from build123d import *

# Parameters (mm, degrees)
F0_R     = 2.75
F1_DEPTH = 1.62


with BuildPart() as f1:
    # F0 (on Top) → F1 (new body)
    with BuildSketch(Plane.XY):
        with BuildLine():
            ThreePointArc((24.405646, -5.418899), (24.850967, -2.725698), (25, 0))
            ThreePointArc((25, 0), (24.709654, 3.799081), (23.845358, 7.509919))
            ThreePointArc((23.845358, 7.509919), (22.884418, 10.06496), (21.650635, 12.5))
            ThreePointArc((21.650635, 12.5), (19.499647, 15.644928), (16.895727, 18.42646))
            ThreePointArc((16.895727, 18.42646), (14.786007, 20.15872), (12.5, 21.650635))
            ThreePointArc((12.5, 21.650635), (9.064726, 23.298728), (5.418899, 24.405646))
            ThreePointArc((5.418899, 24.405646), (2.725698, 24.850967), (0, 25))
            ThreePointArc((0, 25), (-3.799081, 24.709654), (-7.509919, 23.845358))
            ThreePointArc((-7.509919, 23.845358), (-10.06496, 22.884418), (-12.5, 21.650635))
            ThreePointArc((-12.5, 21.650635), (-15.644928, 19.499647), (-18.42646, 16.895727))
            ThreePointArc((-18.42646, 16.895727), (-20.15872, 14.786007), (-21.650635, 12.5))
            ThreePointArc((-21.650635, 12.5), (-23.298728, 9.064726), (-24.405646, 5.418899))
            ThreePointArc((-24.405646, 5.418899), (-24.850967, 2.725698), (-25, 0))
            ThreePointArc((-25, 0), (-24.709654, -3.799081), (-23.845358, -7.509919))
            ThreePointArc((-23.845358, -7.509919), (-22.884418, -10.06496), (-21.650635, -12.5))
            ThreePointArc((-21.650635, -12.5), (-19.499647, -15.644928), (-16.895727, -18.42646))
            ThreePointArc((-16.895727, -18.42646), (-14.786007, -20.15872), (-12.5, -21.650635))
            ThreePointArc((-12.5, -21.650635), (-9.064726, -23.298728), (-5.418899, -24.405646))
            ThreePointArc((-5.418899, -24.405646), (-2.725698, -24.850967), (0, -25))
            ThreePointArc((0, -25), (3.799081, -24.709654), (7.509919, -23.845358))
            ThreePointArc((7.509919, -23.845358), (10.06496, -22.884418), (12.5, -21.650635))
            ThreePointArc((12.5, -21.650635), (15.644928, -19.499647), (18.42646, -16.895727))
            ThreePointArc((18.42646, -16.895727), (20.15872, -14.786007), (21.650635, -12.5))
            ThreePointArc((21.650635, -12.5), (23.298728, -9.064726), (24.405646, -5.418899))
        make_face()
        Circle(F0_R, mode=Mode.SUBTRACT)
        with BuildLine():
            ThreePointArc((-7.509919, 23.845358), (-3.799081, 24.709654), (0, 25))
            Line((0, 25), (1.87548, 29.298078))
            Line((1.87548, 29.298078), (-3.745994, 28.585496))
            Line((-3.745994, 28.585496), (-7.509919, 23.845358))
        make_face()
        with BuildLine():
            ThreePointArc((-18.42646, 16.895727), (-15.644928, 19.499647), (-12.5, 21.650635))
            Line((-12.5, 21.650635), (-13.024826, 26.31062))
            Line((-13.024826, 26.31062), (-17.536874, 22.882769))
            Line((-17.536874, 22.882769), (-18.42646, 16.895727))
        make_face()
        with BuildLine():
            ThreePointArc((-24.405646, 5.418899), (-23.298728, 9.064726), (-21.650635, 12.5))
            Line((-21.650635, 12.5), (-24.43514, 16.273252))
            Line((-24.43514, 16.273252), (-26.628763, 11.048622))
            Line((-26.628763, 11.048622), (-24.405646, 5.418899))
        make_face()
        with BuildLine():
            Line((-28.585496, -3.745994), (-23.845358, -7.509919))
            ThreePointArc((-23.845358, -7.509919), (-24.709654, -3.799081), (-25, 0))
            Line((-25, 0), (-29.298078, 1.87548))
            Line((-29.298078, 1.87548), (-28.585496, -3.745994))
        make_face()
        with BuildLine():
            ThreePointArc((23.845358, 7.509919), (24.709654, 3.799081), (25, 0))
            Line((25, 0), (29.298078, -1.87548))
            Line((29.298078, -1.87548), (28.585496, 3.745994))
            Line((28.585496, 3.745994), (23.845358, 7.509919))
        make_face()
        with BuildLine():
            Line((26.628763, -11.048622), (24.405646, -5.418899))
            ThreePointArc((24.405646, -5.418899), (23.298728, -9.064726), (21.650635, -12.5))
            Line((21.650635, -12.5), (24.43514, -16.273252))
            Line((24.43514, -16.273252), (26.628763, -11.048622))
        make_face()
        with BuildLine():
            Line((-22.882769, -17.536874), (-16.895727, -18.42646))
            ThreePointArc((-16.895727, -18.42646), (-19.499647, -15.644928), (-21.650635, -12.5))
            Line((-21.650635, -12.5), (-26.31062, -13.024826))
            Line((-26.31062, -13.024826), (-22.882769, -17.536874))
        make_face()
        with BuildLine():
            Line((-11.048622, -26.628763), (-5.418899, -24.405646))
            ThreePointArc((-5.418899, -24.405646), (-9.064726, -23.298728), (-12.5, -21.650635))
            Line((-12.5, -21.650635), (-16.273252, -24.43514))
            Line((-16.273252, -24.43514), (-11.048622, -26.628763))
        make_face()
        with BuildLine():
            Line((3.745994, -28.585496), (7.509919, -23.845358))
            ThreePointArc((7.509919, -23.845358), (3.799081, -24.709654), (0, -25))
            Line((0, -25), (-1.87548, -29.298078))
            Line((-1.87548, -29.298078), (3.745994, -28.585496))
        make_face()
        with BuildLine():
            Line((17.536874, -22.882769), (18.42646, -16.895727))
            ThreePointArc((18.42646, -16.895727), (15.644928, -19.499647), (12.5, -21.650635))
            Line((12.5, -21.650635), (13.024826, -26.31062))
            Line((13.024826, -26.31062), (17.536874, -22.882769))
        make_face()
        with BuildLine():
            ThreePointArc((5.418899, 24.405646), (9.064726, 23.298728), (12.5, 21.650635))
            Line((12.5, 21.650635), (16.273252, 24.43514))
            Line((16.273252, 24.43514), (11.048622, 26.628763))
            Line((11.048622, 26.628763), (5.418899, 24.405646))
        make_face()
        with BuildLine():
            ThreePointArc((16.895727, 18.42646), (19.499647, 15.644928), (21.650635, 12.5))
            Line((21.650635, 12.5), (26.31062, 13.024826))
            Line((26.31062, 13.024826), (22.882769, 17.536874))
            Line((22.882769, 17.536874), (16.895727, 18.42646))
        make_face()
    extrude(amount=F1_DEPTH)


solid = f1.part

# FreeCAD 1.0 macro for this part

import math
import FreeCAD as App
import Part
import Sketcher

V = App.Vector
Q = App.Units.Quantity

doc = App.newDocument("Part")
params = doc.addObject("Spreadsheet::Sheet", "Params")
for row, (alias, value) in enumerate([
    ("sketch1_diameter", "5.5 mm"),
    ("pad1_length", "1.62 mm"),
], start=1):
    params.set(f"A{row}", alias)
    params.set(f"B{row}", "=" + value)
    params.setAlias(f"B{row}", alias)

body = doc.addObject("PartDesign::Body", "Body")

# Sketch on XY plane
sketch1 = doc.addObject("Sketcher::SketchObject", "Sketch")
body.addObject(sketch1)
sketch1.AttachmentSupport = (doc.XY_Plane, [""])
sketch1.MapMode = "FlatFace"
sketch1.addGeometry(Part.ArcOfCircle(Part.Circle(V(-0.000071, 0.000006, 0), V(0, 0, 1), 25.000071), math.radians(-12.518543), math.radians(-0.000013)), False)
sketch1.addGeometry(Part.LineSegment(V(25, 0, 0), V(29.298078, -1.87548, 0)), False)
sketch1.addGeometry(Part.LineSegment(V(29.298078, -1.87548, 0), V(28.585496, 3.745994, 0)), False)
sketch1.addGeometry(Part.LineSegment(V(28.585496, 3.745994, 0), V(23.845358, 7.509919, 0)), False)
sketch1.addGeometry(Part.ArcOfCircle(Part.Circle(V(0.000056, 0.000026, 0), V(0, 0, 1), 24.999939), math.radians(17.481417), math.radians(30.000012)), False)
sketch1.addGeometry(Part.LineSegment(V(21.650635, 12.5, 0), V(26.31062, 13.024826, 0)), False)
sketch1.addGeometry(Part.LineSegment(V(26.31062, 13.024826, 0), V(22.882769, 17.536874, 0)), False)
sketch1.addGeometry(Part.LineSegment(V(22.882769, 17.536874, 0), V(16.895727, 18.42646, 0)), False)
sketch1.addGeometry(Part.ArcOfCircle(Part.Circle(V(-0.000023, -0.000035, 0), V(0, 0, 1), 25.000042), math.radians(47.48145), math.radians(59.999994)), False)
sketch1.addGeometry(Part.LineSegment(V(12.5, 21.650635, 0), V(16.273252, 24.43514, 0)), False)
sketch1.addGeometry(Part.LineSegment(V(16.273252, 24.43514, 0), V(11.048622, 26.628763, 0)), False)
sketch1.addGeometry(Part.LineSegment(V(11.048622, 26.628763, 0), V(5.418899, 24.405646, 0)), False)
sketch1.addGeometry(Part.ArcOfCircle(Part.Circle(V(-0.000006, -0.000071, 0), V(0, 0, 1), 25.000071), math.radians(77.481457), math.radians(89.999987)), False)
sketch1.addGeometry(Part.LineSegment(V(0, 25, 0), V(1.87548, 29.298078, 0)), False)
sketch1.addGeometry(Part.LineSegment(V(1.87548, 29.298078, 0), V(-3.745994, 28.585496, 0)), False)
sketch1.addGeometry(Part.LineSegment(V(-3.745994, 28.585496, 0), V(-7.509919, 23.845358, 0)), False)
sketch1.addGeometry(Part.ArcOfCircle(Part.Circle(V(-0.000026, 0.000056, 0), V(0, 0, 1), 24.999939), math.radians(107.481417), math.radians(120.000012)), False)
sketch1.addGeometry(Part.LineSegment(V(-12.5, 21.650635, 0), V(-13.024826, 26.31062, 0)), False)
sketch1.addGeometry(Part.LineSegment(V(-13.024826, 26.31062, 0), V(-17.536874, 22.882769, 0)), False)
sketch1.addGeometry(Part.LineSegment(V(-17.536874, 22.882769, 0), V(-18.42646, 16.895727, 0)), False)
sketch1.addGeometry(Part.ArcOfCircle(Part.Circle(V(0.000035, -0.000023, 0), V(0, 0, 1), 25.000042), math.radians(137.48145), math.radians(149.999994)), False)
sketch1.addGeometry(Part.LineSegment(V(-21.650635, 12.5, 0), V(-24.43514, 16.273252, 0)), False)
sketch1.addGeometry(Part.LineSegment(V(-24.43514, 16.273252, 0), V(-26.628763, 11.048622, 0)), False)
sketch1.addGeometry(Part.LineSegment(V(-26.628763, 11.048622, 0), V(-24.405646, 5.418899, 0)), False)
sketch1.addGeometry(Part.ArcOfCircle(Part.Circle(V(0.000071, -0.000006, 0), V(0, 0, 1), 25.000071), math.radians(167.481457), math.radians(179.999987)), False)
sketch1.addGeometry(Part.LineSegment(V(-25, 0, 0), V(-29.298078, 1.87548, 0)), False)
sketch1.addGeometry(Part.LineSegment(V(-29.298078, 1.87548, 0), V(-28.585496, -3.745994, 0)), False)
sketch1.addGeometry(Part.LineSegment(V(-28.585496, -3.745994, 0), V(-23.845358, -7.509919, 0)), False)
sketch1.addGeometry(Part.ArcOfCircle(Part.Circle(V(-0.000056, -0.000026, 0), V(0, 0, 1), 24.999939), math.radians(-162.518583), math.radians(-149.999988)), False)
sketch1.addGeometry(Part.LineSegment(V(-21.650635, -12.5, 0), V(-26.31062, -13.024826, 0)), False)
sketch1.addGeometry(Part.LineSegment(V(-26.31062, -13.024826, 0), V(-22.882769, -17.536874, 0)), False)
sketch1.addGeometry(Part.LineSegment(V(-22.882769, -17.536874, 0), V(-16.895727, -18.42646, 0)), False)
sketch1.addGeometry(Part.ArcOfCircle(Part.Circle(V(0.000023, 0.000035, 0), V(0, 0, 1), 25.000042), math.radians(-132.51855), math.radians(-120.000006)), False)
sketch1.addGeometry(Part.LineSegment(V(-12.5, -21.650635, 0), V(-16.273252, -24.43514, 0)), False)
sketch1.addGeometry(Part.LineSegment(V(-16.273252, -24.43514, 0), V(-11.048622, -26.628763, 0)), False)
sketch1.addGeometry(Part.LineSegment(V(-11.048622, -26.628763, 0), V(-5.418899, -24.405646, 0)), False)
sketch1.addGeometry(Part.ArcOfCircle(Part.Circle(V(0.000006, 0.000071, 0), V(0, 0, 1), 25.000071), math.radians(-102.518543), math.radians(-90.000013)), False)
sketch1.addGeometry(Part.LineSegment(V(0, -25, 0), V(-1.87548, -29.298078, 0)), False)
sketch1.addGeometry(Part.LineSegment(V(-1.87548, -29.298078, 0), V(3.745994, -28.585496, 0)), False)
sketch1.addGeometry(Part.LineSegment(V(3.745994, -28.585496, 0), V(7.509919, -23.845358, 0)), False)
sketch1.addGeometry(Part.ArcOfCircle(Part.Circle(V(0.000026, -0.000056, 0), V(0, 0, 1), 24.999939), math.radians(-72.518583), math.radians(-59.999988)), False)
sketch1.addGeometry(Part.LineSegment(V(12.5, -21.650635, 0), V(13.024826, -26.31062, 0)), False)
sketch1.addGeometry(Part.LineSegment(V(13.024826, -26.31062, 0), V(17.536874, -22.882769, 0)), False)
sketch1.addGeometry(Part.LineSegment(V(17.536874, -22.882769, 0), V(18.42646, -16.895727, 0)), False)
sketch1.addGeometry(Part.ArcOfCircle(Part.Circle(V(-0.000035, 0.000023, 0), V(0, 0, 1), 25.000042), math.radians(-42.51855), math.radians(-30.000006)), False)
sketch1.addGeometry(Part.LineSegment(V(21.650635, -12.5, 0), V(24.43514, -16.273252, 0)), False)
sketch1.addGeometry(Part.LineSegment(V(24.43514, -16.273252, 0), V(26.628763, -11.048622, 0)), False)
sketch1.addGeometry(Part.LineSegment(V(26.628763, -11.048622, 0), V(24.405646, -5.418899, 0)), False)
sketch1.addGeometry(Part.Circle(V(0, 0, 0), V(0, 0, 1), 2.75), False)
sketch1.addConstraint(Sketcher.Constraint("Coincident", 0, 2, 1, 1))
sketch1.addConstraint(Sketcher.Constraint("Coincident", 1, 2, 2, 1))
sketch1.addConstraint(Sketcher.Constraint("Coincident", 2, 2, 3, 1))
sketch1.addConstraint(Sketcher.Constraint("Coincident", 3, 2, 4, 1))
sketch1.addConstraint(Sketcher.Constraint("Coincident", 4, 2, 5, 1))
sketch1.addConstraint(Sketcher.Constraint("Coincident", 5, 2, 6, 1))
sketch1.addConstraint(Sketcher.Constraint("Coincident", 6, 2, 7, 1))
sketch1.addConstraint(Sketcher.Constraint("Coincident", 7, 2, 8, 1))
sketch1.addConstraint(Sketcher.Constraint("Coincident", 8, 2, 9, 1))
sketch1.addConstraint(Sketcher.Constraint("Coincident", 9, 2, 10, 1))
sketch1.addConstraint(Sketcher.Constraint("Coincident", 10, 2, 11, 1))
sketch1.addConstraint(Sketcher.Constraint("Coincident", 11, 2, 12, 1))
sketch1.addConstraint(Sketcher.Constraint("Coincident", 12, 2, 13, 1))
sketch1.addConstraint(Sketcher.Constraint("Coincident", 13, 2, 14, 1))
sketch1.addConstraint(Sketcher.Constraint("Coincident", 14, 2, 15, 1))
sketch1.addConstraint(Sketcher.Constraint("Coincident", 15, 2, 16, 1))
sketch1.addConstraint(Sketcher.Constraint("Coincident", 16, 2, 17, 1))
sketch1.addConstraint(Sketcher.Constraint("Coincident", 17, 2, 18, 1))
sketch1.addConstraint(Sketcher.Constraint("Coincident", 18, 2, 19, 1))
sketch1.addConstraint(Sketcher.Constraint("Coincident", 19, 2, 20, 1))
sketch1.addConstraint(Sketcher.Constraint("Coincident", 20, 2, 21, 1))
sketch1.addConstraint(Sketcher.Constraint("Coincident", 21, 2, 22, 1))
sketch1.addConstraint(Sketcher.Constraint("Coincident", 22, 2, 23, 1))
sketch1.addConstraint(Sketcher.Constraint("Coincident", 23, 2, 24, 1))
sketch1.addConstraint(Sketcher.Constraint("Coincident", 24, 2, 25, 1))
sketch1.addConstraint(Sketcher.Constraint("Coincident", 25, 2, 26, 1))
sketch1.addConstraint(Sketcher.Constraint("Coincident", 26, 2, 27, 1))
sketch1.addConstraint(Sketcher.Constraint("Coincident", 27, 2, 28, 1))
sketch1.addConstraint(Sketcher.Constraint("Coincident", 28, 2, 29, 1))
sketch1.addConstraint(Sketcher.Constraint("Coincident", 29, 2, 30, 1))
sketch1.addConstraint(Sketcher.Constraint("Coincident", 30, 2, 31, 1))
sketch1.addConstraint(Sketcher.Constraint("Coincident", 31, 2, 32, 1))
sketch1.addConstraint(Sketcher.Constraint("Coincident", 32, 2, 33, 1))
sketch1.addConstraint(Sketcher.Constraint("Coincident", 33, 2, 34, 1))
sketch1.addConstraint(Sketcher.Constraint("Coincident", 34, 2, 35, 1))
sketch1.addConstraint(Sketcher.Constraint("Coincident", 35, 2, 36, 1))
sketch1.addConstraint(Sketcher.Constraint("Coincident", 36, 2, 37, 1))
sketch1.addConstraint(Sketcher.Constraint("Coincident", 37, 2, 38, 1))
sketch1.addConstraint(Sketcher.Constraint("Coincident", 38, 2, 39, 1))
sketch1.addConstraint(Sketcher.Constraint("Coincident", 39, 2, 40, 1))
sketch1.addConstraint(Sketcher.Constraint("Coincident", 40, 2, 41, 1))
sketch1.addConstraint(Sketcher.Constraint("Coincident", 41, 2, 42, 1))
sketch1.addConstraint(Sketcher.Constraint("Coincident", 42, 2, 43, 1))
sketch1.addConstraint(Sketcher.Constraint("Coincident", 43, 2, 44, 1))
sketch1.addConstraint(Sketcher.Constraint("Coincident", 44, 2, 45, 1))
sketch1.addConstraint(Sketcher.Constraint("Coincident", 45, 2, 46, 1))
sketch1.addConstraint(Sketcher.Constraint("Coincident", 46, 2, 47, 1))
sketch1.addConstraint(Sketcher.Constraint("Coincident", 47, 2, 0, 1))
sketch1.addConstraint(Sketcher.Constraint("Coincident", 48, 3, -1, 1))
sketch1.addConstraint(Sketcher.Constraint("Equal", 0, 12))
sketch1.addConstraint(Sketcher.Constraint("Equal", 4, 16))
sketch1.addConstraint(Sketcher.Constraint("Equal", 8, 20))
sketch1.addConstraint(Sketcher.Constraint("Equal", 12, 24))
sketch1.addConstraint(Sketcher.Constraint("Equal", 16, 28))
sketch1.addConstraint(Sketcher.Constraint("Equal", 20, 32))
sketch1.addConstraint(Sketcher.Constraint("Equal", 24, 36))
sketch1.addConstraint(Sketcher.Constraint("Equal", 28, 40))
sketch1.addConstraint(Sketcher.Constraint("Equal", 32, 44))
sketch1.addConstraint(Sketcher.Constraint("Symmetric", 0, 3, 24, 3, -1, 1))
sketch1.addConstraint(Sketcher.Constraint("Symmetric", 4, 3, 28, 3, -1, 1))
sketch1.addConstraint(Sketcher.Constraint("Symmetric", 8, 3, 32, 3, -1, 1))
sketch1.addConstraint(Sketcher.Constraint("Symmetric", 12, 3, 36, 3, -1, 1))
sketch1.addConstraint(Sketcher.Constraint("Symmetric", 16, 3, 40, 3, -1, 1))
sketch1.addConstraint(Sketcher.Constraint("Symmetric", 20, 3, 44, 3, -1, 1))
sketch1.addConstraint(Sketcher.Constraint("Symmetric", 1, 2, 25, 2, -1, 1))
sketch1.addConstraint(Sketcher.Constraint("Symmetric", 2, 2, 26, 2, -1, 1))
sketch1.addConstraint(Sketcher.Constraint("Symmetric", 5, 2, 29, 2, -1, 1))
sketch1.addConstraint(Sketcher.Constraint("Symmetric", 6, 2, 30, 2, -1, 1))
sketch1.addConstraint(Sketcher.Constraint("Symmetric", 9, 2, 33, 2, -1, 1))
sketch1.addConstraint(Sketcher.Constraint("Symmetric", 10, 2, 34, 2, -1, 1))
sketch1.addConstraint(Sketcher.Constraint("Symmetric", 13, 2, 37, 2, -1, 1))
sketch1.addConstraint(Sketcher.Constraint("Symmetric", 14, 2, 38, 2, -1, 1))
sketch1.addConstraint(Sketcher.Constraint("Symmetric", 17, 2, 41, 2, -1, 1))
sketch1.addConstraint(Sketcher.Constraint("Symmetric", 18, 2, 42, 2, -1, 1))
sketch1.addConstraint(Sketcher.Constraint("Symmetric", 21, 2, 45, 2, -1, 1))
sketch1.addConstraint(Sketcher.Constraint("Symmetric", 22, 2, 46, 2, -1, 1))
sketch1.addConstraint(Sketcher.Constraint("Symmetric", 8, 2, 16, 2, -2))
sketch1.addConstraint(Sketcher.Constraint("Symmetric", 4, 2, 20, 2, -2))
sketch1.addConstraint(Sketcher.Constraint("PointOnObject", 0, 2, -1))
sketch1.addConstraint(Sketcher.Constraint("PointOnObject", 12, 2, -2))
sketch1.addConstraint(Sketcher.Constraint("PointOnObject", 24, 2, -1))
sketch1.addConstraint(Sketcher.Constraint("PointOnObject", 36, 2, -2))
sketch1.addConstraint(Sketcher.Constraint("Perpendicular", 1, 13))
sketch1.addConstraint(Sketcher.Constraint("Perpendicular", 2, 14))
sketch1.addConstraint(Sketcher.Constraint("Perpendicular", 3, 15))
sketch1.addConstraint(Sketcher.Constraint("Perpendicular", 5, 17))
sketch1.addConstraint(Sketcher.Constraint("Perpendicular", 6, 18))
sketch1.addConstraint(Sketcher.Constraint("Perpendicular", 7, 19))
sketch1.addConstraint(Sketcher.Constraint("Perpendicular", 9, 21))
sketch1.addConstraint(Sketcher.Constraint("Perpendicular", 10, 22))
sketch1.addConstraint(Sketcher.Constraint("Perpendicular", 11, 23))
sketch1.addConstraint(Sketcher.Constraint("Perpendicular", 15, 27))
sketch1.addConstraint(Sketcher.Constraint("Perpendicular", 17, 29))
sketch1.addConstraint(Sketcher.Constraint("Perpendicular", 19, 31))
sketch1.addConstraint(Sketcher.Constraint("Perpendicular", 21, 33))
sketch1.addConstraint(Sketcher.Constraint("Perpendicular", 23, 35))
sketch1.addConstraint(Sketcher.Constraint("Perpendicular", 27, 39))
sketch1.addConstraint(Sketcher.Constraint("Perpendicular", 29, 41))
sketch1.addConstraint(Sketcher.Constraint("Perpendicular", 31, 43))
sketch1.addConstraint(Sketcher.Constraint("Perpendicular", 33, 45))
sketch1.addConstraint(Sketcher.Constraint("Perpendicular", 35, 47))
sketch1.addConstraint(Sketcher.Constraint("Equal", 1, 5))
sketch1.addConstraint(Sketcher.Constraint("Equal", 2, 6))
sketch1.addConstraint(Sketcher.Constraint("Equal", 3, 7))
sketch1.addConstraint(Sketcher.Constraint("Equal", 5, 9))
sketch1.addConstraint(Sketcher.Constraint("Equal", 6, 10))
sketch1.addConstraint(Sketcher.Constraint("Equal", 7, 11))
sketch1.addConstraint(Sketcher.Constraint("Equal", 9, 13))
sketch1.addConstraint(Sketcher.Constraint("Equal", 10, 14))
sketch1.addConstraint(Sketcher.Constraint("Equal", 11, 15))
sketch1.addConstraint(Sketcher.Constraint("Equal", 13, 17))
sketch1.addConstraint(Sketcher.Constraint("Equal", 14, 18))
sketch1.addConstraint(Sketcher.Constraint("Equal", 15, 19))
sketch1.addConstraint(Sketcher.Constraint("Equal", 17, 21))
sketch1.addConstraint(Sketcher.Constraint("Equal", 18, 22))
sketch1.addConstraint(Sketcher.Constraint("Equal", 19, 23))
sketch1.addConstraint(Sketcher.Constraint("Diameter", 48, Q("5.5 mm")))
sketch1.addConstraint(Sketcher.Constraint("DistanceX", -1, 1, 0, 2, Q("25 mm")))
sketch1.addConstraint(Sketcher.Constraint("DistanceY", -1, 1, 12, 2, Q("25 mm")))
sketch1.addConstraint(Sketcher.Constraint("DistanceY", -1, 1, 4, 2, Q("12.5 mm")))
sketch1.addConstraint(Sketcher.Constraint("DistanceX", -1, 1, 8, 2, Q("12.5 mm")))
sketch1.addConstraint(Sketcher.Constraint("Radius", 0, Q("25.000071 mm")))
sketch1.addConstraint(Sketcher.Constraint("Radius", 4, Q("24.999939 mm")))
sketch1.addConstraint(Sketcher.Constraint("Radius", 8, Q("25.000042 mm")))
sketch1.addConstraint(Sketcher.Constraint("DistanceX", -1, 1, 11, 2, Q("5.418899 mm")))
sketch1.addConstraint(Sketcher.Constraint("Distance", 3, Q("6.052771 mm")))
sketch1.addConstraint(Sketcher.Constraint("DistanceX", -1, 1, 1, 2, Q("29.298078 mm")))
sketch1.addConstraint(Sketcher.Constraint("DistanceY", 1, 2, -1, 1, Q("1.87548 mm")))
sketch1.addConstraint(Sketcher.Constraint("DistanceX", -1, 1, 3, 2, Q("23.845358 mm")))
sketch1.addConstraint(Sketcher.Constraint("DistanceY", -1, 1, 3, 2, Q("7.509919 mm")))
sketch1.addConstraint(Sketcher.Constraint("DistanceX", -1, 1, 5, 2, Q("26.31062 mm")))
sketch1.addConstraint(Sketcher.Constraint("DistanceX", -1, 1, 6, 2, Q("22.882769 mm")))
sketch1.addConstraint(Sketcher.Constraint("DistanceY", -1, 1, 7, 2, Q("18.42646 mm")))
sketch1.addConstraint(Sketcher.Constraint("DistanceX", -1, 1, 9, 2, Q("16.273252 mm")))
sketch1.addConstraint(Sketcher.Constraint("DistanceY", -1, 1, 9, 2, Q("24.43514 mm")))
sketch1.addConstraint(Sketcher.Constraint("DistanceY", -1, 1, 17, 2, Q("26.31062 mm")))
sketch1.addConstraint(Sketcher.Constraint("Distance", 2, Q("5.666458 mm")))
sketch1.addConstraint(Sketcher.Constraint("DistanceX", -1, 1, 10, 2, Q("11.048622 mm")))
sketch1.setExpression("Constraints[116]", "Params.sketch1_diameter")
pad1 = doc.addObject("PartDesign::Pad", "Pad")
body.addObject(pad1)
pad1.Profile = sketch1
pad1.setExpression("Length", "Params.pad1_length")

doc.recompute()
